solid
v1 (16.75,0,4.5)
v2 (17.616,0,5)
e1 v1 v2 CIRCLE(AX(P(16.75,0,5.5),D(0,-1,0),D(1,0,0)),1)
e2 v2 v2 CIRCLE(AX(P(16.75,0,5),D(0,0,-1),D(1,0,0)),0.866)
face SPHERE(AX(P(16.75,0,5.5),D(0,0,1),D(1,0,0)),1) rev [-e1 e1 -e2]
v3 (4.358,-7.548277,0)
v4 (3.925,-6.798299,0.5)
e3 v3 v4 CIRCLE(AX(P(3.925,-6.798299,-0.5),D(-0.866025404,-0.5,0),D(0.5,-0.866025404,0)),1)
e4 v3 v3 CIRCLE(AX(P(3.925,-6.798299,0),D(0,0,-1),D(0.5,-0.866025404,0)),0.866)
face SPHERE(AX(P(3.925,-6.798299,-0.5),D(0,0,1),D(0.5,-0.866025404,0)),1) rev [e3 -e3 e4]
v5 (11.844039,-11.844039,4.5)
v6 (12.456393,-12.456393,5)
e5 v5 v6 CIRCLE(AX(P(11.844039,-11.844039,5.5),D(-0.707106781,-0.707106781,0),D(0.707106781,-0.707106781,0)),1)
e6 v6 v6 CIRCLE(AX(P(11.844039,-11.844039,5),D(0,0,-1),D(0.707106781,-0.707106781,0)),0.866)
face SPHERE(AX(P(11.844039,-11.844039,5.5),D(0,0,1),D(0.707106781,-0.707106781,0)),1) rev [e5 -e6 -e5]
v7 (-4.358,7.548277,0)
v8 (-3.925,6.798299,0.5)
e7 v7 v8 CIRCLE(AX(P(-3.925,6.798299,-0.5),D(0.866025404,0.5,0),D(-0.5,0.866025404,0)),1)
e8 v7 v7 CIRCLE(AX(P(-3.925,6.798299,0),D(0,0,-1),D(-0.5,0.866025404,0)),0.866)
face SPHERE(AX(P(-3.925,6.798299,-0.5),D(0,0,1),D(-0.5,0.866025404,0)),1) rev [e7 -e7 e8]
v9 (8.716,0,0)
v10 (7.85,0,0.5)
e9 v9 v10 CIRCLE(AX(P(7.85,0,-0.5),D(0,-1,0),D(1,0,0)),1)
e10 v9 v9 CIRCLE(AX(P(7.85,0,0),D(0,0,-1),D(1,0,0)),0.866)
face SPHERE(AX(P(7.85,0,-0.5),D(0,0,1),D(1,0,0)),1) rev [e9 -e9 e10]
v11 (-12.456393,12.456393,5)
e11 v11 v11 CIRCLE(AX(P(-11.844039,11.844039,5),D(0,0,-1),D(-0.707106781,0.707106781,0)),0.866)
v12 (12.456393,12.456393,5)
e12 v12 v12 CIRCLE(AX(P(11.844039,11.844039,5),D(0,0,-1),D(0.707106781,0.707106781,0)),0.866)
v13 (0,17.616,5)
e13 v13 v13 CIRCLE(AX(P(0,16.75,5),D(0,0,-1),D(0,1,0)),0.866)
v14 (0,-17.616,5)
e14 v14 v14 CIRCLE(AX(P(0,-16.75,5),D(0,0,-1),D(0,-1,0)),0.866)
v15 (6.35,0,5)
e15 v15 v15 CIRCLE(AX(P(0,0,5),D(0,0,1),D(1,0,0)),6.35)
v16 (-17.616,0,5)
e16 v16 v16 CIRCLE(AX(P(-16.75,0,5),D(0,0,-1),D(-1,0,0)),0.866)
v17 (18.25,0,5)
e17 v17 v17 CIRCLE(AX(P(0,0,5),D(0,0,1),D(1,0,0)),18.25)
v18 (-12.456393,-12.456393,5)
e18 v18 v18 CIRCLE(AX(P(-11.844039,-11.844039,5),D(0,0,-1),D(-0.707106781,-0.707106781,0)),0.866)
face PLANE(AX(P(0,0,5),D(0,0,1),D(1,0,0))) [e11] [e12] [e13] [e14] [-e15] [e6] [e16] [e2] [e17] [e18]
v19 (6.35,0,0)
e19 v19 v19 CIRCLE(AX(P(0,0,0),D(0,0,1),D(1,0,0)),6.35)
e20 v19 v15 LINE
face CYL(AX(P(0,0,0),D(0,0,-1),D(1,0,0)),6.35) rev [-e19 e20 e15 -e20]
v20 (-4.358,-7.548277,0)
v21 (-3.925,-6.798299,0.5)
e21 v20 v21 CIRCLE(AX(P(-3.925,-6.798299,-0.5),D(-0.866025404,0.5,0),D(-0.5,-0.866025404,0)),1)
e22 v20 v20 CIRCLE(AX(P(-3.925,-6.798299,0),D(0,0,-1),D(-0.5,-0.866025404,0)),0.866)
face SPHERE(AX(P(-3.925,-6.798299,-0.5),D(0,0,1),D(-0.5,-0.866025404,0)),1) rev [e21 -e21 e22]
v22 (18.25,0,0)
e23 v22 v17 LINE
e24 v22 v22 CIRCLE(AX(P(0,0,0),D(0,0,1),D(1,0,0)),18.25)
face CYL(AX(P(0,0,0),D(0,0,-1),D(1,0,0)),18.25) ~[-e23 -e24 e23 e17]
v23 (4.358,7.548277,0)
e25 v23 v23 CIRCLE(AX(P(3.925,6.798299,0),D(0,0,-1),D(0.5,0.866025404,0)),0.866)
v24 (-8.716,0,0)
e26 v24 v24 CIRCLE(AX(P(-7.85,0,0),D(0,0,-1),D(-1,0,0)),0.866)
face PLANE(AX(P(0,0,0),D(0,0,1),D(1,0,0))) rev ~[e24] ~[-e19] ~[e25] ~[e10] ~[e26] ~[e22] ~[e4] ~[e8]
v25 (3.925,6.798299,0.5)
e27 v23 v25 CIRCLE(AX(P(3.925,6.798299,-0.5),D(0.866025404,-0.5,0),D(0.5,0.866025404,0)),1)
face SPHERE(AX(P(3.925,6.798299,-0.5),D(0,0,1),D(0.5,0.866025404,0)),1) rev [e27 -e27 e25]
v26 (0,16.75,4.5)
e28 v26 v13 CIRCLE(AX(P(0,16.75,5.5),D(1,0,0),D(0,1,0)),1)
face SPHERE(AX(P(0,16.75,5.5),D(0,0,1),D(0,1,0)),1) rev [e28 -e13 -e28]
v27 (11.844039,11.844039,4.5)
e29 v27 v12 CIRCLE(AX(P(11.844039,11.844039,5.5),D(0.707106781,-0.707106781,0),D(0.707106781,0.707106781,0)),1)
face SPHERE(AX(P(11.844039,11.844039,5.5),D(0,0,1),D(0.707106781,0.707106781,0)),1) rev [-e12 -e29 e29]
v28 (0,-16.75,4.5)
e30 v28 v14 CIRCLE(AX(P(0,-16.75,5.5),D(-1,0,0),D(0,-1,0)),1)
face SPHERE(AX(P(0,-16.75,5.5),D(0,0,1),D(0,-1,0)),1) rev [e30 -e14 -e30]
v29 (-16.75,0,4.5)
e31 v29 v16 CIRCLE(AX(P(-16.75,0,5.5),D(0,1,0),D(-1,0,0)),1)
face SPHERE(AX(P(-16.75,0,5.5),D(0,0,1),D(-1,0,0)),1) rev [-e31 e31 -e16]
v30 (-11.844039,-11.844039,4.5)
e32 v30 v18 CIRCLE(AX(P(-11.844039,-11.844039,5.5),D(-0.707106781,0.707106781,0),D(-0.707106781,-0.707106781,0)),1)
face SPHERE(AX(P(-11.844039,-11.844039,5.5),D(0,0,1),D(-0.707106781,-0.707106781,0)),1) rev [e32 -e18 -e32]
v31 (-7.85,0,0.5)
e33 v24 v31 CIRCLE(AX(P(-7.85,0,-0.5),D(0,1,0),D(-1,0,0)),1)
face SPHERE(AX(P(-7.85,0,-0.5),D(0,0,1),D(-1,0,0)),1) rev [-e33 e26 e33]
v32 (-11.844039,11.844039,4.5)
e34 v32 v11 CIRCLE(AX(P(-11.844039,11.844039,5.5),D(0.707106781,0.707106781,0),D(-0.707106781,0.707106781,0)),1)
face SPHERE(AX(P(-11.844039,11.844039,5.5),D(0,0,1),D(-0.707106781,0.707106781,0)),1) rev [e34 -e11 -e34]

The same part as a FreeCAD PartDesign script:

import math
import FreeCAD as App
import Part
import Sketcher

V = App.Vector
Q = App.Units.Quantity

doc = App.newDocument("Part")
body = doc.addObject("PartDesign::Body", "Body")

# Sketch on XY plane
sketch1 = doc.addObject("Sketcher::SketchObject", "Sketch")
body.addObject(sketch1)
sketch1.AttachmentSupport = (doc.XY_Plane, [""])
sketch1.MapMode = "FlatFace"
sketch1.addGeometry([
    Part.Circle(V(0, 0, 0), V(0, 0, 1), 18.25),
    Part.Circle(V(0, 0, 0), V(0, 0, 1), 6.35),
], False)
sketch1.addConstraint([
    Sketcher.Constraint("Coincident", 0, 3, -1, 1),
    Sketcher.Constraint("Coincident", 1, 3, -1, 1),
    Sketcher.Constraint("Diameter", 0, Q("36.5 mm")),
    Sketcher.Constraint("Diameter", 1, Q("12.7 mm")),
])
pad1 = doc.addObject("PartDesign::Pad", "Pad")
body.addObject(pad1)
pad1.Profile = sketch1
pad1.Length = 5

# Sketch on XZ plane
sketch2 = doc.addObject("Sketcher::SketchObject", "Sketch001")
body.addObject(sketch2)
sketch2.AttachmentSupport = (doc.XZ_Plane, [""])
sketch2.MapMode = "FlatFace"
sketch2.addGeometry([
    Part.LineSegment(V(-16.75, 5, 0), V(-16.75, 4.5, 0)),
    Part.ArcOfCircle(Part.Circle(V(-16.75, 5.5, 0), V(0, 0, 1), 1), math.radians(-149.999272), math.radians(-90)),
    Part.LineSegment(V(-17.616, 5, 0), V(-16.75, 5, 0)),
], False)
sketch2.addGeometry(Part.LineSegment(V(-16.75, 5.5, 0), V(-16.75, 4.5, 0)), True)  # axis
sketch2.addConstraint([
    Sketcher.Constraint("Coincident", 0, 2, 1, 2),
    Sketcher.Constraint("Coincident", 1, 1, 2, 1),
    Sketcher.Constraint("Coincident", 2, 2, 0, 1),
    Sketcher.Constraint("Vertical", 0),
    Sketcher.Constraint("Horizontal", 2),
    Sketcher.Constraint("Vertical", 3),
    Sketcher.Constraint("Coincident", 3, 1, 1, 3),
    Sketcher.Constraint("Coincident", 3, 2, 0, 2),
    Sketcher.Constraint("Radius", 1, Q("1 mm")),
    Sketcher.Constraint("DistanceY", 0, 2, 0, 1, Q("0.5 mm")),
    Sketcher.Constraint("DistanceY", -1, 1, 1, 1, Q("5 mm")),
    Sketcher.Constraint("DistanceX", 1, 3, -1, 1, Q("16.75 mm")),
])
groove = doc.addObject("PartDesign::Groove", "Groove")
body.addObject(groove)
groove.Profile = sketch2
groove.ReferenceAxis = (sketch2, ["Axis0"])
groove.Angle = 360
doc.recompute()

polarpattern = doc.addObject("PartDesign::PolarPattern", "PolarPattern")
body.addObject(polarpattern)
polarpattern.Originals = [groove]
polarpattern.Axis = (doc.Z_Axis, [""])
polarpattern.Angle = 360
polarpattern.Occurrences = 8
body.Tip = polarpattern

# Sketch on XZ plane
sketch3 = doc.addObject("Sketcher::SketchObject", "Sketch002")
body.addObject(sketch3)
sketch3.AttachmentSupport = (doc.XZ_Plane, [""])
sketch3.MapMode = "FlatFace"
sketch3.addGeometry([
    Part.LineSegment(V(-7.85, 0, 0), V(-8.716, 0, 0)),
    Part.ArcOfCircle(Part.Circle(V(-7.85, -0.5, 0), V(0, 0, 1), 1), math.radians(90), math.radians(149.999272)),
    Part.LineSegment(V(-7.85, 0.5, 0), V(-7.85, 0, 0)),
], False)
sketch3.addGeometry(Part.LineSegment(V(-7.85, 0.5, 0), V(-7.85, -0.5, 0)), True)  # axis
sketch3.addConstraint([
    Sketcher.Constraint("Coincident", 0, 2, 1, 2),
    Sketcher.Constraint("Coincident", 1, 1, 2, 1),
    Sketcher.Constraint("Coincident", 2, 2, 0, 1),
    Sketcher.Constraint("Horizontal", 0),
    Sketcher.Constraint("Vertical", 2),
    Sketcher.Constraint("Vertical", 3),
    Sketcher.Constraint("Coincident", 3, 1, 1, 1),
    Sketcher.Constraint("Coincident", 3, 2, 1, 3),
    Sketcher.Constraint("PointOnObject", 0, 2, -1),
    Sketcher.Constraint("Radius", 1, Q("1 mm")),
    Sketcher.Constraint("DistanceY", 2, 2, 2, 1, Q("0.5 mm")),
    Sketcher.Constraint("DistanceX", 1, 3, -1, 1, Q("7.85 mm")),
])
groove2 = doc.addObject("PartDesign::Groove", "Groove001")
body.addObject(groove2)
groove2.Profile = sketch3
groove2.ReferenceAxis = (sketch3, ["Axis0"])
groove2.Angle = 360
doc.recompute()

polarpattern2 = doc.addObject("PartDesign::PolarPattern", "PolarPattern001")
body.addObject(polarpattern2)
polarpattern2.Originals = [groove2]
polarpattern2.Axis = (doc.Z_Axis, [""])
polarpattern2.Angle = 360
polarpattern2.Occurrences = 6
body.Tip = polarpattern2

doc.recompute()
